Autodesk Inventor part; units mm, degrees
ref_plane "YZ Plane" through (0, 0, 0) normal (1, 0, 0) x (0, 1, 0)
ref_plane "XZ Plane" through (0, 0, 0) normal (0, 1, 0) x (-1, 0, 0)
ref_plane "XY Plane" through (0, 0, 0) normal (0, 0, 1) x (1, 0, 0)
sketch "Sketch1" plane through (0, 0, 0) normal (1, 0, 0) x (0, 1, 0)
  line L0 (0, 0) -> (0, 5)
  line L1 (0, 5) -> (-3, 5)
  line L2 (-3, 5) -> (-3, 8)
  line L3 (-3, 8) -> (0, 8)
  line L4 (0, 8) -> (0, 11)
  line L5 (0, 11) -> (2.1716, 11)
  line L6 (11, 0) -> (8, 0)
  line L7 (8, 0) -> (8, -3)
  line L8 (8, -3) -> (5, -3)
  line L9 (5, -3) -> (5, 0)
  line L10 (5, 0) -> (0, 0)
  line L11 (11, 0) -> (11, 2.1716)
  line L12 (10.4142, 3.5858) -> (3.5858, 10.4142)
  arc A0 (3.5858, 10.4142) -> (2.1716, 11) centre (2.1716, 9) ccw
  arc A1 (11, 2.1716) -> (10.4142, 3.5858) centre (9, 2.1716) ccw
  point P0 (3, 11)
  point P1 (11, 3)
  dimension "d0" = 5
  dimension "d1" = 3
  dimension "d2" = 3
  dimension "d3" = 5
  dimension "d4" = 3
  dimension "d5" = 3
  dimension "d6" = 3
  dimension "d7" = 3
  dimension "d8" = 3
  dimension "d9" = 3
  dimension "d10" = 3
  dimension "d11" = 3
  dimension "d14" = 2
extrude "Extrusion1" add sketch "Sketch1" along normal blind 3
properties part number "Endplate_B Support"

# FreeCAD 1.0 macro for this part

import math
import FreeCAD as App
import Part
import Sketcher

V = App.Vector
Q = App.Units.Quantity

doc = App.newDocument("Part")
body = doc.addObject("PartDesign::Body", "Body")

# Sketch on YZ plane
sketch1 = body.newObject("Sketcher::SketchObject", "Sketch")
sketch1.AttachmentSupport = (doc.getObject("YZ_Plane"), [""])
sketch1.MapMode = "FlatFace"
sketch1.addGeometry([
    Part.LineSegment(V(0, 5, 0), V(0, 0, 0)),  # 0
    Part.LineSegment(V(0, 0, 0), V(5, 0, 0)),  # 1
    Part.LineSegment(V(5, 0, 0), V(5, -3, 0)),  # 2
    Part.LineSegment(V(5, -3, 0), V(8, -3, 0)),  # 3
    Part.LineSegment(V(8, -3, 0), V(8, 0, 0)),  # 4
    Part.LineSegment(V(8, 0, 0), V(11, 0, 0)),  # 5
    Part.LineSegment(V(11, 0, 0), V(11, 2.2, 0)),  # 6
    Part.ArcOfCircle(Part.Circle(V(9, 2.2, 0), V(0, 0, 1), 2), math.radians(0), math.radians(45)),  # 7
    Part.LineSegment(V(10.4, 3.6, 0), V(3.6, 10.4, 0)),  # 8
    Part.ArcOfCircle(Part.Circle(V(2.2, 9, 0), V(0, 0, 1), 2), math.radians(45), math.radians(90)),  # 9
    Part.LineSegment(V(2.2, 11, 0), V(0, 11, 0)),  # 10
    Part.LineSegment(V(0, 11, 0), V(0, 8, 0)),  # 11
    Part.LineSegment(V(0, 8, 0), V(-3, 8, 0)),  # 12
    Part.LineSegment(V(-3, 8, 0), V(-3, 5, 0)),  # 13
    Part.LineSegment(V(-3, 5, 0), V(0, 5, 0)),  # 14
], False)
sketch1.addConstraint([
    Sketcher.Constraint("Coincident", 0, 2, 1, 1),
    Sketcher.Constraint("Coincident", 1, 2, 2, 1),
    Sketcher.Constraint("Coincident", 2, 2, 3, 1),
    Sketcher.Constraint("Coincident", 3, 2, 4, 1),
    Sketcher.Constraint("Coincident", 4, 2, 5, 1),
    Sketcher.Constraint("Coincident", 5, 2, 6, 1),
    Sketcher.Constraint("Tangent", 6, 2, 7, 1),
    Sketcher.Constraint("Tangent", 7, 2, 8, 1),
    Sketcher.Constraint("Tangent", 8, 2, 9, 1),
    Sketcher.Constraint("Tangent", 9, 2, 10, 1),
    Sketcher.Constraint("Coincident", 10, 2, 11, 1),
    Sketcher.Constraint("Coincident", 11, 2, 12, 1),
    Sketcher.Constraint("Coincident", 12, 2, 13, 1),
    Sketcher.Constraint("Coincident", 13, 2, 14, 1),
    Sketcher.Constraint("Coincident", 14, 2, 0, 1),
    Sketcher.Constraint("Vertical", 0),
    Sketcher.Constraint("Horizontal", 1),
    Sketcher.Constraint("Vertical", 2),
    Sketcher.Constraint("Horizontal", 3),
    Sketcher.Constraint("Vertical", 4),
    Sketcher.Constraint("Horizontal", 5),
    Sketcher.Constraint("Vertical", 6),
    Sketcher.Constraint("Horizontal", 10),
    Sketcher.Constraint("Vertical", 11),
    Sketcher.Constraint("Horizontal", 12),
    Sketcher.Constraint("Vertical", 13),
    Sketcher.Constraint("Horizontal", 14),
    Sketcher.Constraint("Coincident", 0, 2, -1, 1),
    Sketcher.Constraint("Equal", 7, 9),
    Sketcher.Constraint("PointOnObject", 4, 2, -1),
    Sketcher.Constraint("PointOnObject", 10, 2, -2),
    Sketcher.Constraint("Equal", 3, 5),
    Sketcher.Constraint("Equal", 5, 12),
    Sketcher.Constraint("Equal", 1, 0),
    Sketcher.Constraint("Equal", 14, 2),
    Sketcher.Constraint("Equal", 10, 6),
    Sketcher.Constraint("Equal", 4, 11),
    Sketcher.Constraint("Equal", 11, 13),
    Sketcher.Constraint("Radius", 7, Q("2 mm")),
    Sketcher.Constraint("DistanceX", 1, 1, 1, 2, Q("5 mm")),
    Sketcher.Constraint("DistanceX", 3, 1, 3, 2, Q("3 mm")),
    Sketcher.Constraint("DistanceX", 10, 2, 10, 1, Q("2.1716 mm")),
])
pad1 = body.newObject("PartDesign::Pad", "Pad")
pad1.Profile = sketch1
pad1.Length = 3

doc.recompute()
